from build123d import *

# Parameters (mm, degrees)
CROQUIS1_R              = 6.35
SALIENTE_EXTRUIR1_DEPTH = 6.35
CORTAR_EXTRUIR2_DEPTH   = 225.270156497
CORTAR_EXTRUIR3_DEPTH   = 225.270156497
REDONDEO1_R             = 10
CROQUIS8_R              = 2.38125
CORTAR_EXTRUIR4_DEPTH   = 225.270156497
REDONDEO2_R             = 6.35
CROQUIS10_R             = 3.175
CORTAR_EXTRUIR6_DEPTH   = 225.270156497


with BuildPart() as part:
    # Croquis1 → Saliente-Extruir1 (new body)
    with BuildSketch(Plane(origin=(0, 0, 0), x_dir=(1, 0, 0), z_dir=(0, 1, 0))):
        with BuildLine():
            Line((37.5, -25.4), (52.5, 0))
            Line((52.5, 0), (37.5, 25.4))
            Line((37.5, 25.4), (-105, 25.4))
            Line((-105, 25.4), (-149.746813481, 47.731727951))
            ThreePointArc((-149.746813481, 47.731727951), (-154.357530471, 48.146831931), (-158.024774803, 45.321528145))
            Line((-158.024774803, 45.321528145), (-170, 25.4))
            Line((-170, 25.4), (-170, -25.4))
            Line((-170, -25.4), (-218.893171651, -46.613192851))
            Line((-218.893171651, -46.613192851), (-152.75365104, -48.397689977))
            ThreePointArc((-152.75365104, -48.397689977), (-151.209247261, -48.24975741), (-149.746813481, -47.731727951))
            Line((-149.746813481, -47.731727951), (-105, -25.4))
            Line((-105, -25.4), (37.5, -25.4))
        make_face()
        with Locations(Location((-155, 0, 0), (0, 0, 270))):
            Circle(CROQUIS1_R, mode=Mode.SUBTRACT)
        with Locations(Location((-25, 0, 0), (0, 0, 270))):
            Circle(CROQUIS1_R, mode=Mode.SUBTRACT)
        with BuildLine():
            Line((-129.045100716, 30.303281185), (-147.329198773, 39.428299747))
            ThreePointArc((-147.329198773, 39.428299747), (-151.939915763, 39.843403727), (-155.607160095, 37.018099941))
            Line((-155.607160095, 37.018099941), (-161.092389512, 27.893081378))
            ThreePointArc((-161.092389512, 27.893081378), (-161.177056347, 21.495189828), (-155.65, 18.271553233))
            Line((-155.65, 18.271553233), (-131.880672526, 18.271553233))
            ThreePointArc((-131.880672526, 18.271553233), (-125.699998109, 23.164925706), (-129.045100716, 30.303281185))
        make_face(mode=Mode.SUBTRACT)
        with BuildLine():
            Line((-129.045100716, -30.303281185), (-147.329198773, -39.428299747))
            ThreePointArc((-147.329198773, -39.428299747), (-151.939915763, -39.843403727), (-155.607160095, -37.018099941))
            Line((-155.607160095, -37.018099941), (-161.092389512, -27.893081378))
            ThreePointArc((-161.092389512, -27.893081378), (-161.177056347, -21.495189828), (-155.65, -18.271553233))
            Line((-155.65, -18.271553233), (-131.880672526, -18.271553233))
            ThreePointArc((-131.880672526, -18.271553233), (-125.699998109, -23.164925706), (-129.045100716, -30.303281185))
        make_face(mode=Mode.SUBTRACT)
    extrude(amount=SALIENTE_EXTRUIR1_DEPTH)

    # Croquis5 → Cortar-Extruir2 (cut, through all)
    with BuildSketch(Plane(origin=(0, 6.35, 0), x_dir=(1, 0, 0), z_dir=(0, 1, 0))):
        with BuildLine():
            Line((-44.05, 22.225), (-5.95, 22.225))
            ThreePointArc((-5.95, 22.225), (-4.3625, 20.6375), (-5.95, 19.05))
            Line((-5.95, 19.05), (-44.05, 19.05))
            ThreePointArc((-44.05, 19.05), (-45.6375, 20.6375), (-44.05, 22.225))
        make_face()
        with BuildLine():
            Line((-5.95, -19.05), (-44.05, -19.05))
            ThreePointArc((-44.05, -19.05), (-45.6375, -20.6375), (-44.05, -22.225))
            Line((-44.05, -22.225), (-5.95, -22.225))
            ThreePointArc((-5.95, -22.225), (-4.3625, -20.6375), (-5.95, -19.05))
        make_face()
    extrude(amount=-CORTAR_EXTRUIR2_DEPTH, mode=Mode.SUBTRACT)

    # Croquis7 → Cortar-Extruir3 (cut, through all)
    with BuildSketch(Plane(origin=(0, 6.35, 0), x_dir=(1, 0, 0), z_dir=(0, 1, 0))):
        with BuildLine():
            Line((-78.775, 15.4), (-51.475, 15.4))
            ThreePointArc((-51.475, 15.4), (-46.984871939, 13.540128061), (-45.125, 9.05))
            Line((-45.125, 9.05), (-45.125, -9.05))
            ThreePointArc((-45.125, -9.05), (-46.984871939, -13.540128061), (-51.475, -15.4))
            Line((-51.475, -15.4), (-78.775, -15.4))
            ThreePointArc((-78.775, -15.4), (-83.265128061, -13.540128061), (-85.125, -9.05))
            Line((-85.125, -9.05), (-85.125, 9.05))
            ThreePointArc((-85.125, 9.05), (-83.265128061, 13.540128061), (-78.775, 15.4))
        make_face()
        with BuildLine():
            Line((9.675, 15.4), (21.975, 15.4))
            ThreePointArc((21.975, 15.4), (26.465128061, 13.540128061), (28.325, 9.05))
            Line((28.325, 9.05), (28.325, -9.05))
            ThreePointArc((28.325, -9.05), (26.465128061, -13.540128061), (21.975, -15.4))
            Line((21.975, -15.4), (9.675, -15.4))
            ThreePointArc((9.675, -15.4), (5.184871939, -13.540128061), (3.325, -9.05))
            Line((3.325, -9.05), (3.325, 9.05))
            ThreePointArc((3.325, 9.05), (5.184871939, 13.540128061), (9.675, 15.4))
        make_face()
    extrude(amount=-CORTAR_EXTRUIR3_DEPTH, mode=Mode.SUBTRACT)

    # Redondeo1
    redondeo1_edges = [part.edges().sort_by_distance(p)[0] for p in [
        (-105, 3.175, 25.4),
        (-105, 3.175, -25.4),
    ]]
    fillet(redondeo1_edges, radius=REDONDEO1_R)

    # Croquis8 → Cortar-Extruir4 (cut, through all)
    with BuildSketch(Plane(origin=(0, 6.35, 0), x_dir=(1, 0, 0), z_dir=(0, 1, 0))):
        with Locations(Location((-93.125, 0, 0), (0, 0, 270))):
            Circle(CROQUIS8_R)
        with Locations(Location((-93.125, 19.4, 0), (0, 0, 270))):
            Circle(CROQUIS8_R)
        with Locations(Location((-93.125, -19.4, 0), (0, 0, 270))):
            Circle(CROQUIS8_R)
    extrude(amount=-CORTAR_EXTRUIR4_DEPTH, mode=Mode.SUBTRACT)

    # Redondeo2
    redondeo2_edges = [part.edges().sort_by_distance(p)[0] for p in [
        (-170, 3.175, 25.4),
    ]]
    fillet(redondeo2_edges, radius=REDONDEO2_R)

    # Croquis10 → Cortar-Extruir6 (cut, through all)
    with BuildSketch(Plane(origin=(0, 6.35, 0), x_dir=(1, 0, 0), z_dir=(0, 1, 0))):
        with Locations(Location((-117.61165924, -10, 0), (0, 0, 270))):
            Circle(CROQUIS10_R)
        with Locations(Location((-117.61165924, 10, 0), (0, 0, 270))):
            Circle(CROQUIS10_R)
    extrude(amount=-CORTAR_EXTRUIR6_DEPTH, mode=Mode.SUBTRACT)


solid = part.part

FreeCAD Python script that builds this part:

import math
import FreeCAD as App
import Part
import Sketcher
Q = App.Units.Quantity


def edges_at(feature, points):
    """Names of the edges that pass closest to the given points."""
    edges = feature.Shape.Edges
    near = lambda p: min(range(len(edges)), key=lambda i: edges[i].distToShape(Part.Vertex(*p))[0])
    return sorted({f"Edge{near(p) + 1}" for p in points})

doc = App.newDocument("Part")
body = doc.addObject("PartDesign::Body", "Body")

sketch1 = body.newObject("Sketcher::SketchObject", "Sketch")
sketch1.AttachmentSupport = (doc.getObject("XZ_Plane"), [""])
sketch1.MapMode = "FlatFace"
sketch1.addGeometry(Part.LineSegment(App.Vector(37.5, 25.4, 0), App.Vector(52.5, 0, 0)), False)
sketch1.addGeometry(Part.LineSegment(App.Vector(52.5, 0, 0), App.Vector(37.5, -25.4, 0)), False)
sketch1.addGeometry(Part.LineSegment(App.Vector(37.5, -25.4, 0), App.Vector(-105, -25.4, 0)), False)
sketch1.addGeometry(Part.LineSegment(App.Vector(-105, -25.4, 0), App.Vector(-149.7, -47.7, 0)), False)
sketch1.addGeometry(Part.ArcOfCircle(Part.Circle(App.Vector(-152.6, -42.1, 0), App.Vector(0, 0, 1), 6.3), math.radians(-149), math.radians(-63)), False)
sketch1.addGeometry(Part.LineSegment(App.Vector(-158, -45.3, 0), App.Vector(-170, -25.4, 0)), False)
sketch1.addGeometry(Part.LineSegment(App.Vector(-170, -25.4, 0), App.Vector(-170, 25.4, 0)), False)
sketch1.addGeometry(Part.LineSegment(App.Vector(-170, 25.4, 0), App.Vector(-218.9, 46.6, 0)), False)
sketch1.addGeometry(Part.LineSegment(App.Vector(-218.9, 46.6, 0), App.Vector(-152.8, 48.4, 0)), False)
sketch1.addGeometry(Part.ArcOfCircle(Part.Circle(App.Vector(-152.6, 42, 0), App.Vector(0, 0, 1), 6.4), math.radians(63), math.radians(92)), False)
sketch1.addGeometry(Part.LineSegment(App.Vector(-149.7, 47.7, 0), App.Vector(-105, 25.4, 0)), False)
sketch1.addGeometry(Part.LineSegment(App.Vector(-105, 25.4, 0), App.Vector(37.5, 25.4, 0)), False)
sketch1.addGeometry(Part.ArcOfCircle(Part.Circle(App.Vector(-131.9, 24.6, 0), App.Vector(0, 0, 1), 6.3), math.radians(-90), math.radians(63)), False)
sketch1.addGeometry(Part.LineSegment(App.Vector(-129, 30.3, 0), App.Vector(-147.3, 39.4, 0)), False)
sketch1.addGeometry(Part.ArcOfCircle(Part.Circle(App.Vector(-150.2, 33.7, 0), App.Vector(0, 0, 1), 6.3), math.radians(63), math.radians(149)), False)
sketch1.addGeometry(Part.LineSegment(App.Vector(-155.6, 37, 0), App.Vector(-161.1, 27.9, 0)), False)
sketch1.addGeometry(Part.ArcOfCircle(Part.Circle(App.Vector(-155.7, 24.6, 0), App.Vector(0, 0, 1), 6.3), math.radians(149), math.radians(270)), False)
sketch1.addGeometry(Part.LineSegment(App.Vector(-155.7, 18.3, 0), App.Vector(-131.9, 18.3, 0)), False)
sketch1.addGeometry(Part.Circle(App.Vector(-155, 0, 0), App.Vector(0, 0, 1), 6.3), False)
sketch1.addGeometry(Part.LineSegment(App.Vector(-147.3, -39.4, 0), App.Vector(-129, -30.3, 0)), False)
sketch1.addGeometry(Part.ArcOfCircle(Part.Circle(App.Vector(-131.9, -24.6, 0), App.Vector(0, 0, 1), 6.3), math.radians(-63), math.radians(90)), False)
sketch1.addGeometry(Part.LineSegment(App.Vector(-131.9, -18.3, 0), App.Vector(-155.7, -18.3, 0)), False)
sketch1.addGeometry(Part.ArcOfCircle(Part.Circle(App.Vector(-155.7, -24.6, 0), App.Vector(0, 0, 1), 6.3), math.radians(90), math.radians(211)), False)
sketch1.addGeometry(Part.LineSegment(App.Vector(-161.1, -27.9, 0), App.Vector(-155.6, -37, 0)), False)
sketch1.addGeometry(Part.ArcOfCircle(Part.Circle(App.Vector(-150.2, -33.7, 0), App.Vector(0, 0, 1), 6.3), math.radians(-149), math.radians(-63)), False)
sketch1.addGeometry(Part.Circle(App.Vector(-25, 0, 0), App.Vector(0, 0, 1), 6.3), False)
sketch1.addConstraint(Sketcher.Constraint("Coincident", 0, 2, 1, 1))
sketch1.addConstraint(Sketcher.Constraint("Coincident", 1, 2, 2, 1))
sketch1.addConstraint(Sketcher.Constraint("Coincident", 2, 2, 3, 1))
sketch1.addConstraint(Sketcher.Constraint("Tangent", 3, 2, 4, 2))
sketch1.addConstraint(Sketcher.Constraint("Tangent", 4, 1, 5, 1))
sketch1.addConstraint(Sketcher.Constraint("Coincident", 5, 2, 6, 1))
sketch1.addConstraint(Sketcher.Constraint("Coincident", 6, 2, 7, 1))
sketch1.addConstraint(Sketcher.Constraint("Coincident", 7, 2, 8, 1))
sketch1.addConstraint(Sketcher.Constraint("Tangent", 8, 2, 9, 2))
sketch1.addConstraint(Sketcher.Constraint("Tangent", 9, 1, 10, 1))
sketch1.addConstraint(Sketcher.Constraint("Coincident", 10, 2, 11, 1))
sketch1.addConstraint(Sketcher.Constraint("Coincident", 11, 2, 0, 1))
sketch1.addConstraint(Sketcher.Constraint("Tangent", 12, 2, 13, 1))
sketch1.addConstraint(Sketcher.Constraint("Tangent", 13, 2, 14, 1))
sketch1.addConstraint(Sketcher.Constraint("Tangent", 14, 2, 15, 1))
sketch1.addConstraint(Sketcher.Constraint("Tangent", 15, 2, 16, 1))
sketch1.addConstraint(Sketcher.Constraint("Tangent", 16, 2, 17, 1))
sketch1.addConstraint(Sketcher.Constraint("Tangent", 17, 2, 12, 1))
sketch1.addConstraint(Sketcher.Constraint("Tangent", 19, 2, 20, 1))
sketch1.addConstraint(Sketcher.Constraint("Tangent", 20, 2, 21, 1))
sketch1.addConstraint(Sketcher.Constraint("Tangent", 21, 2, 22, 1))
sketch1.addConstraint(Sketcher.Constraint("Tangent", 22, 2, 23, 1))
sketch1.addConstraint(Sketcher.Constraint("Tangent", 23, 2, 24, 1))
sketch1.addConstraint(Sketcher.Constraint("Tangent", 24, 2, 19, 1))
sketch1.addConstraint(Sketcher.Constraint("Horizontal", 2))
sketch1.addConstraint(Sketcher.Constraint("Vertical", 6))
sketch1.addConstraint(Sketcher.Constraint("Horizontal", 11))
sketch1.addConstraint(Sketcher.Constraint("Horizontal", 17))
sketch1.addConstraint(Sketcher.Constraint("Horizontal", 21))
sketch1.addConstraint(Sketcher.Constraint("Equal", 4, 9))
sketch1.addConstraint(Sketcher.Constraint("Equal", 9, 12))
sketch1.addConstraint(Sketcher.Constraint("Equal", 12, 14))
sketch1.addConstraint(Sketcher.Constraint("Equal", 14, 16))
sketch1.addConstraint(Sketcher.Constraint("Equal", 16, 18))
sketch1.addConstraint(Sketcher.Constraint("Equal", 18, 20))
sketch1.addConstraint(Sketcher.Constraint("Equal", 20, 22))
sketch1.addConstraint(Sketcher.Constraint("Equal", 22, 24))
sketch1.addConstraint(Sketcher.Constraint("Equal", 24, 25))
sketch1.addConstraint(Sketcher.Constraint("Symmetric", 4, 3, 9, 3, -1))
sketch1.addConstraint(Sketcher.Constraint("Symmetric", 12, 3, 20, 3, -1))
sketch1.addConstraint(Sketcher.Constraint("Symmetric", 14, 3, 24, 3, -1))
sketch1.addConstraint(Sketcher.Constraint("Symmetric", 2, 2, 10, 2, -1))
sketch1.addConstraint(Sketcher.Constraint("PointOnObject", 18, 3, -1))
sketch1.addConstraint(Sketcher.Constraint("PointOnObject", 25, 3, -1))
sketch1.addConstraint(Sketcher.Constraint("PointOnObject", 0, 2, -1))
sketch1.addConstraint(Sketcher.Constraint("Parallel", 10, 13))
sketch1.addConstraint(Sketcher.Constraint("Parallel", 5, 23))
sketch1.addConstraint(Sketcher.Constraint("Horizontal", 2, 2, 5, 2))
sketch1.addConstraint(Sketcher.Constraint("Horizontal", 6, 2, 10, 2))
sketch1.addConstraint(Sketcher.Constraint("Vertical", 16, 3, 22, 3))
sketch1.addConstraint(Sketcher.Constraint("Vertical", 1, 2, 11, 2))
sketch1.addConstraint(Sketcher.Constraint("Diameter", 18, Q("0.5 in")))
sketch1.addConstraint(Sketcher.Constraint("DistanceY", 6, 1, 6, 2, Q("2 in")))
sketch1.addConstraint(Sketcher.Constraint("DistanceX", 2, 2, 2, 1, 142.5))
sketch1.addConstraint(Sketcher.Constraint("DistanceY", 4, 3, -1, 1, 42.05))
sketch1.addConstraint(Sketcher.Constraint("DistanceX", 16, 3, -1, 1, 155.65))
sketch1.addConstraint(Sketcher.Constraint("DistanceX", 18, 3, -1, 1, 155.0))
sketch1.addConstraint(Sketcher.Constraint("DistanceX", 25, 3, -1, 1, 25.0))
sketch1.addConstraint(Sketcher.Constraint("DistanceX", -1, 1, 0, 2, 52.5))
sketch1.addConstraint(Sketcher.Constraint("DistanceX", -1, 1, 1, 2, 37.5))
sketch1.addConstraint(Sketcher.Constraint("DistanceX", 5, 2, -1, 1, 170.0))
sketch1.addConstraint(Sketcher.Constraint("DistanceX", 12, 2, -1, 1, 129.045101))
sketch1.addConstraint(Sketcher.Constraint("DistanceX", 13, 2, -1, 1, 147.329199))
sketch1.addConstraint(Sketcher.Constraint("DistanceY", -1, 1, 13, 2, 39.4283))
sketch1.addConstraint(Sketcher.Constraint("DistanceX", 7, 2, 14, 3, 68.728401))
sketch1.addConstraint(Sketcher.Constraint("Distance", 8, 66.16359))
pad1 = body.newObject("PartDesign::Pad", "Pad")
pad1.Profile = sketch1
pad1.Length = Q("0.25 in")
pad1.Reversed = True

sketch2 = body.newObject("Sketcher::SketchObject", "Sketch001")
sketch2.AttachmentSupport = (doc.getObject("XZ_Plane"), [""])
sketch2.MapMode = "FlatFace"
sketch2.AttachmentOffset = App.Placement(App.Vector(0, 0, -0.25 * 25.4), App.Rotation())
sketch2.addGeometry(Part.LineSegment(App.Vector(-6, -22.2, 0), App.Vector(-44, -22.2, 0)), False)
sketch2.addGeometry(Part.ArcOfCircle(Part.Circle(App.Vector(-44, -20.6, 0), App.Vector(0, 0, 1), 1.6), math.radians(90), math.radians(270)), False)
sketch2.addGeometry(Part.LineSegment(App.Vector(-44, -19.1, 0), App.Vector(-6, -19.1, 0)), False)
sketch2.addGeometry(Part.ArcOfCircle(Part.Circle(App.Vector(-6, -20.6, 0), App.Vector(0, 0, 1), 1.6), math.radians(-90), math.radians(90)), False)
sketch2.addGeometry(Part.LineSegment(App.Vector(-6, 19.1, 0), App.Vector(-44, 19.1, 0)), False)
sketch2.addGeometry(Part.ArcOfCircle(Part.Circle(App.Vector(-44, 20.6, 0), App.Vector(0, 0, 1), 1.6), math.radians(90), math.radians(270)), False)
sketch2.addGeometry(Part.LineSegment(App.Vector(-44, 22.2, 0), App.Vector(-6, 22.2, 0)), False)
sketch2.addGeometry(Part.ArcOfCircle(Part.Circle(App.Vector(-6, 20.6, 0), App.Vector(0, 0, 1), 1.6), math.radians(-90), math.radians(90)), False)
sketch2.addConstraint(Sketcher.Constraint("Tangent", 0, 2, 1, 2))
sketch2.addConstraint(Sketcher.Constraint("Tangent", 1, 1, 2, 1))
sketch2.addConstraint(Sketcher.Constraint("Tangent", 2, 2, 3, 2))
sketch2.addConstraint(Sketcher.Constraint("Tangent", 3, 1, 0, 1))
sketch2.addConstraint(Sketcher.Constraint("Tangent", 4, 2, 5, 2))
sketch2.addConstraint(Sketcher.Constraint("Tangent", 5, 1, 6, 1))
sketch2.addConstraint(Sketcher.Constraint("Tangent", 6, 2, 7, 2))
sketch2.addConstraint(Sketcher.Constraint("Tangent", 7, 1, 4, 1))
sketch2.addConstraint(Sketcher.Constraint("Horizontal", 0))
sketch2.addConstraint(Sketcher.Constraint("Horizontal", 2))
sketch2.addConstraint(Sketcher.Constraint("Horizontal", 4))
sketch2.addConstraint(Sketcher.Constraint("Horizontal", 6))
sketch2.addConstraint(Sketcher.Constraint("Equal", 3, 5))
sketch2.addConstraint(Sketcher.Constraint("Symmetric", 1, 3, 5, 3, -1))
sketch2.addConstraint(Sketcher.Constraint("Vertical", 3, 3, 7, 3))
sketch2.addConstraint(Sketcher.Constraint("DistanceX", 0, 2, 0, 1, Q("1.5 in")))
sketch2.addConstraint(Sketcher.Constraint("Radius", 1, Q("0.0625 in")))
sketch2.addConstraint(Sketcher.Constraint("DistanceY", 1, 1, 4, 2, Q("1.5 in")))
sketch2.addConstraint(Sketcher.Constraint("DistanceX", 1, 3, -1, 1, 44.05))
pocket1 = body.newObject("PartDesign::Pocket", "Pocket")
pocket1.Profile = sketch2
pocket1.Type = "ThroughAll"
pocket1.Reversed = True

sketch3 = body.newObject("Sketcher::SketchObject", "Sketch002")
sketch3.AttachmentSupport = (doc.getObject("XZ_Plane"), [""])
sketch3.MapMode = "FlatFace"
sketch3.AttachmentOffset = App.Placement(App.Vector(0, 0, -0.25 * 25.4), App.Rotation())
sketch3.addGeometry(Part.LineSegment(App.Vector(-51, -15, 0), App.Vector(-79, -15, 0)), False)
sketch3.addGeometry(Part.ArcOfCircle(Part.Circle(App.Vector(-79, -9, 0), App.Vector(0, 0, 1), 6), math.radians(180), math.radians(270)), False)
sketch3.addGeometry(Part.LineSegment(App.Vector(-85, -9, 0), App.Vector(-85, 9, 0)), False)
sketch3.addGeometry(Part.ArcOfCircle(Part.Circle(App.Vector(-79, 9, 0), App.Vector(0, 0, 1), 6), math.radians(90), math.radians(180)), False)
sketch3.addGeometry(Part.LineSegment(App.Vector(-79, 15, 0), App.Vector(-51, 15, 0)), False)
sketch3.addGeometry(Part.ArcOfCircle(Part.Circle(App.Vector(-51, 9, 0), App.Vector(0, 0, 1), 6), math.radians(0), math.radians(90)), False)
sketch3.addGeometry(Part.LineSegment(App.Vector(-45, 9, 0), App.Vector(-45, -9, 0)), False)
sketch3.addGeometry(Part.ArcOfCircle(Part.Circle(App.Vector(-51, -9, 0), App.Vector(0, 0, 1), 6), math.radians(-90), math.radians(0)), False)
sketch3.addGeometry(Part.LineSegment(App.Vector(22, -15, 0), App.Vector(10, -15, 0)), False)
sketch3.addGeometry(Part.ArcOfCircle(Part.Circle(App.Vector(10, -9, 0), App.Vector(0, 0, 1), 6), math.radians(180), math.radians(270)), False)
sketch3.addGeometry(Part.LineSegment(App.Vector(3, -9, 0), App.Vector(3, 9, 0)), False)
sketch3.addGeometry(Part.ArcOfCircle(Part.Circle(App.Vector(10, 9, 0), App.Vector(0, 0, 1), 6), math.radians(90), math.radians(180)), False)
sketch3.addGeometry(Part.LineSegment(App.Vector(10, 15, 0), App.Vector(22, 15, 0)), False)
sketch3.addGeometry(Part.ArcOfCircle(Part.Circle(App.Vector(22, 9, 0), App.Vector(0, 0, 1), 6), math.radians(0), math.radians(90)), False)
sketch3.addGeometry(Part.LineSegment(App.Vector(28, 9, 0), App.Vector(28, -9, 0)), False)
sketch3.addGeometry(Part.ArcOfCircle(Part.Circle(App.Vector(22, -9, 0), App.Vector(0, 0, 1), 6), math.radians(-90), math.radians(0)), False)
sketch3.addConstraint(Sketcher.Constraint("Tangent", 0, 2, 1, 2))
sketch3.addConstraint(Sketcher.Constraint("Tangent", 1, 1, 2, 1))
sketch3.addConstraint(Sketcher.Constraint("Tangent", 2, 2, 3, 2))
sketch3.addConstraint(Sketcher.Constraint("Tangent", 3, 1, 4, 1))
sketch3.addConstraint(Sketcher.Constraint("Tangent", 4, 2, 5, 2))
sketch3.addConstraint(Sketcher.Constraint("Tangent", 5, 1, 6, 1))
sketch3.addConstraint(Sketcher.Constraint("Tangent", 6, 2, 7, 2))
sketch3.addConstraint(Sketcher.Constraint("Tangent", 7, 1, 0, 1))
sketch3.addConstraint(Sketcher.Constraint("Tangent", 8, 2, 9, 2))
sketch3.addConstraint(Sketcher.Constraint("Tangent", 9, 1, 10, 1))
sketch3.addConstraint(Sketcher.Constraint("Tangent", 10, 2, 11, 2))
sketch3.addConstraint(Sketcher.Constraint("Tangent", 11, 1, 12, 1))
sketch3.addConstraint(Sketcher.Constraint("Tangent", 12, 2, 13, 2))
sketch3.addConstraint(Sketcher.Constraint("Tangent", 13, 1, 14, 1))
sketch3.addConstraint(Sketcher.Constraint("Tangent", 14, 2, 15, 2))
sketch3.addConstraint(Sketcher.Constraint("Tangent", 15, 1, 8, 1))
sketch3.addConstraint(Sketcher.Constraint("Horizontal", 0))
sketch3.addConstraint(Sketcher.Constraint("Vertical", 2))
sketch3.addConstraint(Sketcher.Constraint("Horizontal", 4))
sketch3.addConstraint(Sketcher.Constraint("Vertical", 6))
sketch3.addConstraint(Sketcher.Constraint("Horizontal", 8))
sketch3.addConstraint(Sketcher.Constraint("Vertical", 10))
sketch3.addConstraint(Sketcher.Constraint("Horizontal", 12))
sketch3.addConstraint(Sketcher.Constraint("Vertical", 14))
sketch3.addConstraint(Sketcher.Constraint("Equal", 1, 3))
sketch3.addConstraint(Sketcher.Constraint("Equal", 3, 5))
sketch3.addConstraint(Sketcher.Constraint("Equal", 5, 7))
sketch3.addConstraint(Sketcher.Constraint("Equal", 7, 9))
sketch3.addConstraint(Sketcher.Constraint("Equal", 9, 11))
sketch3.addConstraint(Sketcher.Constraint("Equal", 11, 13))
sketch3.addConstraint(Sketcher.Constraint("Equal", 13, 15))
sketch3.addConstraint(Sketcher.Constraint("Horizontal", 7, 3, 9, 3))
sketch3.addConstraint(Sketcher.Constraint("Horizontal", 5, 3, 11, 3))
sketch3.addConstraint(Sketcher.Constraint("Radius", 1, Q("0.25 in")))
sketch3.addConstraint(Sketcher.Constraint("DistanceX", 0, 2, 0, 1, 27.3))
sketch3.addConstraint(Sketcher.Constraint("DistanceX", 8, 2, 8, 1, 12.3))
sketch3.addConstraint(Sketcher.Constraint("DistanceY", 2, 1, 2, 2, 18.1))
sketch3.addConstraint(Sketcher.Constraint("DistanceX", 1, 3, -1, 1, 78.775))
sketch3.addConstraint(Sketcher.Constraint("DistanceY", 1, 3, -1, 1, 9.05))
sketch3.addConstraint(Sketcher.Constraint("DistanceX", -1, 1, 9, 3, 9.675))
pocket2 = body.newObject("PartDesign::Pocket", "Pocket001")
pocket2.Profile = sketch3
pocket2.Type = "ThroughAll"
pocket2.Reversed = True
doc.recompute()

fillet = body.newObject("PartDesign::Fillet", "Fillet")
fillet.Base = (pocket2, edges_at(pocket2, [(-105, 3.175, 25.4), (-105, 3.175, -25.4)]))
fillet.Radius = 10

sketch4 = body.newObject("Sketcher::SketchObject", "Sketch003")
sketch4.AttachmentSupport = (doc.getObject("XZ_Plane"), [""])
sketch4.MapMode = "FlatFace"
sketch4.AttachmentOffset = App.Placement(App.Vector(0, 0, -0.25 * 25.4), App.Rotation())
sketch4.addGeometry(Part.Circle(App.Vector(-93.1, 0, 0), App.Vector(0, 0, 1), 2.4), False)
sketch4.addGeometry(Part.Circle(App.Vector(-93.1, -19.4, 0), App.Vector(0, 0, 1), 2.4), False)
sketch4.addGeometry(Part.Circle(App.Vector(-93.1, 19.4, 0), App.Vector(0, 0, 1), 2.4), False)
sketch4.addConstraint(Sketcher.Constraint("Equal", 0, 1))
sketch4.addConstraint(Sketcher.Constraint("Equal", 1, 2))
sketch4.addConstraint(Sketcher.Constraint("Symmetric", 1, 3, 2, 3, -1))
sketch4.addConstraint(Sketcher.Constraint("PointOnObject", 0, 3, -1))
sketch4.addConstraint(Sketcher.Constraint("Vertical", 0, 3, 1, 3))
sketch4.addConstraint(Sketcher.Constraint("Diameter", 0, Q("0.1875 in")))
sketch4.addConstraint(Sketcher.Constraint("DistanceX", 0, 3, -1, 1, 93.125))
sketch4.addConstraint(Sketcher.Constraint("DistanceY", 1, 3, -1, 1, 19.4))
pocket3 = body.newObject("PartDesign::Pocket", "Pocket002")
pocket3.Profile = sketch4
pocket3.Type = "ThroughAll"
pocket3.Reversed = True
doc.recompute()

fillet2 = body.newObject("PartDesign::Fillet", "Fillet001")
fillet2.Base = (pocket3, edges_at(pocket3, [(-170, 3.175, 25.4)]))
fillet2.Radius = Q("0.25 in")

sketch5 = body.newObject("Sketcher::SketchObject", "Sketch004")
sketch5.AttachmentSupport = (doc.getObject("XZ_Plane"), [""])
sketch5.MapMode = "FlatFace"
sketch5.AttachmentOffset = App.Placement(App.Vector(0, 0, -0.25 * 25.4), App.Rotation())
sketch5.addGeometry(Part.Circle(App.Vector(-117.6, 10, 0), App.Vector(0, 0, 1), 3.2), False)
sketch5.addGeometry(Part.Circle(App.Vector(-117.6, -10, 0), App.Vector(0, 0, 1), 3.2), False)
sketch5.addConstraint(Sketcher.Constraint("Equal", 0, 1))
sketch5.addConstraint(Sketcher.Constraint("Symmetric", 0, 3, 1, 3, -1))
sketch5.addConstraint(Sketcher.Constraint("Diameter", 0, Q("0.25 in")))
sketch5.addConstraint(Sketcher.Constraint("DistanceY", -1, 1, 0, 3, 10.0))
sketch5.addConstraint(Sketcher.Constraint("DistanceX", 0, 3, -1, 1, 117.611659))
pocket4 = body.newObject("PartDesign::Pocket", "Pocket003")
pocket4.Profile = sketch5
pocket4.Type = "ThroughAll"
pocket4.Reversed = True

doc.recompute()
